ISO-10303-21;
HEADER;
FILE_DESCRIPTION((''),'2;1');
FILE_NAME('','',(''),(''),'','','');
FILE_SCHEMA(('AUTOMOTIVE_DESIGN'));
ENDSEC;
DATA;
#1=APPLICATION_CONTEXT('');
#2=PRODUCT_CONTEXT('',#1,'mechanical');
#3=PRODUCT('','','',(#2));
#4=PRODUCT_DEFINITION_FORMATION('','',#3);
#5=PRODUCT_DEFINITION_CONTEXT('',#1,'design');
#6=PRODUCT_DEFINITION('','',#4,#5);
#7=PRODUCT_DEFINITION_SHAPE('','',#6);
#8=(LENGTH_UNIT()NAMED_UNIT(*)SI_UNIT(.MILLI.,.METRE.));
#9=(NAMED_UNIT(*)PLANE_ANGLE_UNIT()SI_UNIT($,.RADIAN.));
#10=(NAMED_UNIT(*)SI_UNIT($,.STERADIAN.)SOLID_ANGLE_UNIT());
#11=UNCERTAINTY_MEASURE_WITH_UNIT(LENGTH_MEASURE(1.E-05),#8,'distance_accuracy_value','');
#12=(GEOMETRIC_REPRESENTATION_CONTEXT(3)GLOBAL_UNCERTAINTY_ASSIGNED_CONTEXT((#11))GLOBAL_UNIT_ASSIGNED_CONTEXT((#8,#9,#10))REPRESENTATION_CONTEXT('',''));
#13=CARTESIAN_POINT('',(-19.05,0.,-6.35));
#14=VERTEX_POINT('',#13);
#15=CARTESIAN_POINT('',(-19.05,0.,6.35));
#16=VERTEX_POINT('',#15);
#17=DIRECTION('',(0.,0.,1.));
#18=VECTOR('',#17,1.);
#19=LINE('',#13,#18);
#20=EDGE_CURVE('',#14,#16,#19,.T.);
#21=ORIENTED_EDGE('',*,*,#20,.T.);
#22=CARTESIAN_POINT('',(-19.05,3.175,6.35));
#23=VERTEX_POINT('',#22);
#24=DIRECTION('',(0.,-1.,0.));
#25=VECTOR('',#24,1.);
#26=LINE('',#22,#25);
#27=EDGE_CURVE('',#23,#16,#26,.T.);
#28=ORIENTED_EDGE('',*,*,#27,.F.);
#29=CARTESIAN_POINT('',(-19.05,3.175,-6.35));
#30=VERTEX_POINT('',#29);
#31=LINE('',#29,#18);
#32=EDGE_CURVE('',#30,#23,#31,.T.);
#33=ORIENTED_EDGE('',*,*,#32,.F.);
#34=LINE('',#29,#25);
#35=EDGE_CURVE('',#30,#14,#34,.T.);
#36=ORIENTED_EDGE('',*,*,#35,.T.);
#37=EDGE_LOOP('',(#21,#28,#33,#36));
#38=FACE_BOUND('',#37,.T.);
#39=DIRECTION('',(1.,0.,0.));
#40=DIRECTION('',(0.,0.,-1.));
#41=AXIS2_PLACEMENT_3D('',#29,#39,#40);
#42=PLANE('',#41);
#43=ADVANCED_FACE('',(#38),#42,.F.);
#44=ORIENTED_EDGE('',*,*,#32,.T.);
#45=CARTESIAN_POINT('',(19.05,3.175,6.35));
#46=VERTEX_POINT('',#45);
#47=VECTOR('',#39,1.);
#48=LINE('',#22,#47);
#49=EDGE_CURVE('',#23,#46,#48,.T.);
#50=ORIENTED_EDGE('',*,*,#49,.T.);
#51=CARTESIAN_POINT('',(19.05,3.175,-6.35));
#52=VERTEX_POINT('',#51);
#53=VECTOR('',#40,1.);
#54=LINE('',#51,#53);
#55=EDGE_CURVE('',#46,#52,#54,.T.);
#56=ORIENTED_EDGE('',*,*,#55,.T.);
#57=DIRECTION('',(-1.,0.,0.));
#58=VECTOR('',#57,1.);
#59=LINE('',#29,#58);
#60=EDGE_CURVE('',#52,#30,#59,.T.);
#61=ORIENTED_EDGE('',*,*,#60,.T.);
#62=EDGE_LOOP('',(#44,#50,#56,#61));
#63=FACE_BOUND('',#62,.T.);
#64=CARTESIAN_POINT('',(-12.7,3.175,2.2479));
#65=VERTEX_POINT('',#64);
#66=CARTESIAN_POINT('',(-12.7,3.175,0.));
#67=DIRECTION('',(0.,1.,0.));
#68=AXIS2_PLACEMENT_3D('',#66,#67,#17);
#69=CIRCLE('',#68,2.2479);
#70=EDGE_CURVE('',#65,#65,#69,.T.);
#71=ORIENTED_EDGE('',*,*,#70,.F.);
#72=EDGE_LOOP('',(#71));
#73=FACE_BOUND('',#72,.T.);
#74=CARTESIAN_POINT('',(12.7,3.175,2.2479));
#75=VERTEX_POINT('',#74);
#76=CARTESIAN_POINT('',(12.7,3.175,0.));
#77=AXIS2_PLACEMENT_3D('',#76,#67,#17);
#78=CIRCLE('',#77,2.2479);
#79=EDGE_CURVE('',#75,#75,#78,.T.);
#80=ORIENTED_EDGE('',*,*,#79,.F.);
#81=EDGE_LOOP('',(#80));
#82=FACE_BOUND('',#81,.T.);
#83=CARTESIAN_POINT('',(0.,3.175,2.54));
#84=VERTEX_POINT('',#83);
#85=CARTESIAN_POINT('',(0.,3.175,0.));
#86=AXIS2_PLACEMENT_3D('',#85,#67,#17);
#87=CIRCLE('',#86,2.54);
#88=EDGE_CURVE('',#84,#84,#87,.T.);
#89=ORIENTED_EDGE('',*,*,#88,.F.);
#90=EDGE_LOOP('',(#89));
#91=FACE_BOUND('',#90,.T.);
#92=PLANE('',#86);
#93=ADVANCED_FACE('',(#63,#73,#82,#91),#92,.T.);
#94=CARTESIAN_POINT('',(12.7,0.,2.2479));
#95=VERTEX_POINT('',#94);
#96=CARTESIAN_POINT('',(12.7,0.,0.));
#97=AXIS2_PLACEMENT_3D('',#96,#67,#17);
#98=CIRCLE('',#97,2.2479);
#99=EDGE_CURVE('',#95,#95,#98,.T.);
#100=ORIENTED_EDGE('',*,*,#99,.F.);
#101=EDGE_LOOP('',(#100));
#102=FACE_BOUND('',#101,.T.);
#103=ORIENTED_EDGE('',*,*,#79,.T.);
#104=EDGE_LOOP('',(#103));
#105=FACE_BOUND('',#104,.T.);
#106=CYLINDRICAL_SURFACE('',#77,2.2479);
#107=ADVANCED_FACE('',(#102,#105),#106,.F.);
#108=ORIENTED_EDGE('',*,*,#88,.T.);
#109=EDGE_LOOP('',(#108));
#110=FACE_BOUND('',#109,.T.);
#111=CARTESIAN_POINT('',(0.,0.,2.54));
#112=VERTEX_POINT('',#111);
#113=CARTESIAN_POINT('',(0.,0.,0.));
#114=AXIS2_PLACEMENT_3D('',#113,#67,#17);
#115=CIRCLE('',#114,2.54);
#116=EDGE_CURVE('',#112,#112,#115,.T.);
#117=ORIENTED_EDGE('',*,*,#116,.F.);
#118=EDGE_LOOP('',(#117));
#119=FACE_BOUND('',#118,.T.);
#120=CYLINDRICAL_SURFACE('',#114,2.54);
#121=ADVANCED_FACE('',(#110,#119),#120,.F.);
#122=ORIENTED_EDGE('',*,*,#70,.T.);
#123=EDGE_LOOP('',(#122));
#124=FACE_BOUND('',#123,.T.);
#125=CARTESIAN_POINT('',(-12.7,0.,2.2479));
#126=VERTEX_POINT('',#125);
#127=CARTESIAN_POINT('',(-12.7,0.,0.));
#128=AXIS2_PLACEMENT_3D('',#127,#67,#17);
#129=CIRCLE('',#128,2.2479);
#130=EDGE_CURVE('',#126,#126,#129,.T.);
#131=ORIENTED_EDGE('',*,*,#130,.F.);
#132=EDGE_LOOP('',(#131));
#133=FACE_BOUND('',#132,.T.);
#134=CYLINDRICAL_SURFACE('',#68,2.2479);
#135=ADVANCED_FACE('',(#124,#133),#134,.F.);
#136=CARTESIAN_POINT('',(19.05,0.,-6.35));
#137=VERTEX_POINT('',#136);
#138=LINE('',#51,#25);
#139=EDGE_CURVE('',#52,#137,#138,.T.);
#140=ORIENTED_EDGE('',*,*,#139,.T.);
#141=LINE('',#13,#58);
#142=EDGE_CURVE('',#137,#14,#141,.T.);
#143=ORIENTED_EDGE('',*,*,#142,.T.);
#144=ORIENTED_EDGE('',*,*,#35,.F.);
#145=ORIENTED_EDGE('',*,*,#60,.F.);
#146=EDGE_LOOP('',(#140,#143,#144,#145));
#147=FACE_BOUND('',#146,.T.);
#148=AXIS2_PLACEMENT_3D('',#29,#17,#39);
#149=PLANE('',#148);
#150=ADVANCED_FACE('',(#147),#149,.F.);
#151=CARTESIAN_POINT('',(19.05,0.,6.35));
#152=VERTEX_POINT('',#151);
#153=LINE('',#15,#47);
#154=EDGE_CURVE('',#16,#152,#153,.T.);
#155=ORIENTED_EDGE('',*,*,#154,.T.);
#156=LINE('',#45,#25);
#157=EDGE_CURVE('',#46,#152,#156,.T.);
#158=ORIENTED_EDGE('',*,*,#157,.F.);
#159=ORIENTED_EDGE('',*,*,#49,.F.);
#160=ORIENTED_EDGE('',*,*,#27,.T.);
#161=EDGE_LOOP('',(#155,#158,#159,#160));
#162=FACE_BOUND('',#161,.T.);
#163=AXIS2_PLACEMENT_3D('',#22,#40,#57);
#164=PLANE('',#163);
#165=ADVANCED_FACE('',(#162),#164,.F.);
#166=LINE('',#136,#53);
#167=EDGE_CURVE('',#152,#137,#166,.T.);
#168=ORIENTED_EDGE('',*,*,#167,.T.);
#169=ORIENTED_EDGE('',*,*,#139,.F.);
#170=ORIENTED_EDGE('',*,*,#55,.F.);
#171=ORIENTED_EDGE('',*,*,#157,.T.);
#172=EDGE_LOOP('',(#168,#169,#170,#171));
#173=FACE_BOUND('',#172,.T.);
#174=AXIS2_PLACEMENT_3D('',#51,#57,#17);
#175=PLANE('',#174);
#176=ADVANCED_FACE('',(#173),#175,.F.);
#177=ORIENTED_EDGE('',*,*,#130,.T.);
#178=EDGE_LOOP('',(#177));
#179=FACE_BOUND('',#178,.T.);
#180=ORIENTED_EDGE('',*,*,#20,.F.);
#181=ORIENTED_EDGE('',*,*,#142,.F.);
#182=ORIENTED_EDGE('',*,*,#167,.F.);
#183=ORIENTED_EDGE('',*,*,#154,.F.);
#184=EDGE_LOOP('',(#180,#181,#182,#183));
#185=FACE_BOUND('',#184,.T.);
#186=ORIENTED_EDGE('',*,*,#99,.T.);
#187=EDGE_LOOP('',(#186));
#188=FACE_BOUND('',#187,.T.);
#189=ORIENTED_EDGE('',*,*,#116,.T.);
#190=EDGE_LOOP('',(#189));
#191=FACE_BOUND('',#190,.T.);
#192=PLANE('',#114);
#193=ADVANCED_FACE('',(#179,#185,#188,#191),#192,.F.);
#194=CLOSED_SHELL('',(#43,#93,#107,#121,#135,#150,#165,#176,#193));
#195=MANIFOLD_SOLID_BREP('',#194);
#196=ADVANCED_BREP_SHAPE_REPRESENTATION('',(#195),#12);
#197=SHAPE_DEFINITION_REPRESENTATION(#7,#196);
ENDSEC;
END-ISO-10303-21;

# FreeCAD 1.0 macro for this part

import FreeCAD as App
import Part
import Sketcher

V = App.Vector
Q = App.Units.Quantity

doc = App.newDocument("Part")
body = doc.addObject("PartDesign::Body", "Body")

# Sketch on XZ plane
sketch1 = body.newObject("Sketcher::SketchObject", "Sketch")
sketch1.AttachmentSupport = (doc.getObject("XZ_Plane"), [""])
sketch1.MapMode = "FlatFace"
sketch1.addGeometry([
    Part.LineSegment(V(-19, -6, 0), V(-19, 6, 0)),
    Part.LineSegment(V(-19, 6, 0), V(19, 6, 0)),
    Part.LineSegment(V(19, 6, 0), V(19, -6, 0)),
    Part.LineSegment(V(19, -6, 0), V(-19, -6, 0)),
], False)
sketch1.addConstraint([
    Sketcher.Constraint("Coincident", 0, 2, 1, 1),
    Sketcher.Constraint("Coincident", 1, 2, 2, 1),
    Sketcher.Constraint("Coincident", 2, 2, 3, 1),
    Sketcher.Constraint("Coincident", 3, 2, 0, 1),
    Sketcher.Constraint("Vertical", 0),
    Sketcher.Constraint("Horizontal", 1),
    Sketcher.Constraint("Vertical", 2),
    Sketcher.Constraint("Horizontal", 3),
    Sketcher.Constraint("Symmetric", 0, 2, 2, 2, -1, 1),
    Sketcher.Constraint("DistanceX", 1, 1, 1, 2, Q("1.5 in")),
    Sketcher.Constraint("DistanceY", 0, 1, 0, 2, Q("0.5 in")),
])
pad1 = body.newObject("PartDesign::Pad", "Pad")
pad1.Profile = sketch1
pad1.Length = Q("0.125 in")
pad1.Reversed = True

# Sketch on XZ plane
sketch2 = body.newObject("Sketcher::SketchObject", "Sketch001")
sketch2.AttachmentSupport = (doc.getObject("XZ_Plane"), [""])
sketch2.MapMode = "FlatFace"
sketch2.AttachmentOffset = App.Placement(V(0, 0, -0.125 * 25.4), App.Rotation())
sketch2.addGeometry(Part.Circle(V(0, 0, 0), V(0, 0, 1), 2.5), False)
sketch2.addConstraint([
    Sketcher.Constraint("Coincident", 0, 3, -1, 1),
    Sketcher.Constraint("Diameter", 0, Q("0.2 in")),
])
pocket1 = body.newObject("PartDesign::Pocket", "Pocket")
pocket1.Profile = sketch2
pocket1.Type = "ThroughAll"
pocket1.Reversed = True

# Sketch on XZ plane
sketch3 = body.newObject("Sketcher::SketchObject", "Sketch002")
sketch3.AttachmentSupport = (doc.getObject("XZ_Plane"), [""])
sketch3.MapMode = "FlatFace"
sketch3.AttachmentOffset = App.Placement(V(0, 0, -0.125 * 25.4), App.Rotation())
sketch3.addGeometry([
    Part.Circle(V(-12.7, 0, 0), V(0, 0, 1), 2.2),
    Part.Circle(V(12.7, 0, 0), V(0, 0, 1), 2.2),
], False)
sketch3.addConstraint([
    Sketcher.Constraint("Equal", 0, 1),
    Sketcher.Constraint("Symmetric", 0, 3, 1, 3, -1, 1),
    Sketcher.Constraint("PointOnObject", 0, 3, -1),
    Sketcher.Constraint("Diameter", 0, Q("0.177 in")),
    Sketcher.Constraint("DistanceX", 0, 3, 1, 3, Q("1 in")),
])
doc.recompute()
hole = body.newObject("PartDesign::Hole", "Hole")
hole.Profile = sketch3
hole.ThreadType = "None"
hole.Diameter = Q("0.177 in")
hole.DepthType = "ThroughAll"
hole.Reversed = True

doc.recompute()
